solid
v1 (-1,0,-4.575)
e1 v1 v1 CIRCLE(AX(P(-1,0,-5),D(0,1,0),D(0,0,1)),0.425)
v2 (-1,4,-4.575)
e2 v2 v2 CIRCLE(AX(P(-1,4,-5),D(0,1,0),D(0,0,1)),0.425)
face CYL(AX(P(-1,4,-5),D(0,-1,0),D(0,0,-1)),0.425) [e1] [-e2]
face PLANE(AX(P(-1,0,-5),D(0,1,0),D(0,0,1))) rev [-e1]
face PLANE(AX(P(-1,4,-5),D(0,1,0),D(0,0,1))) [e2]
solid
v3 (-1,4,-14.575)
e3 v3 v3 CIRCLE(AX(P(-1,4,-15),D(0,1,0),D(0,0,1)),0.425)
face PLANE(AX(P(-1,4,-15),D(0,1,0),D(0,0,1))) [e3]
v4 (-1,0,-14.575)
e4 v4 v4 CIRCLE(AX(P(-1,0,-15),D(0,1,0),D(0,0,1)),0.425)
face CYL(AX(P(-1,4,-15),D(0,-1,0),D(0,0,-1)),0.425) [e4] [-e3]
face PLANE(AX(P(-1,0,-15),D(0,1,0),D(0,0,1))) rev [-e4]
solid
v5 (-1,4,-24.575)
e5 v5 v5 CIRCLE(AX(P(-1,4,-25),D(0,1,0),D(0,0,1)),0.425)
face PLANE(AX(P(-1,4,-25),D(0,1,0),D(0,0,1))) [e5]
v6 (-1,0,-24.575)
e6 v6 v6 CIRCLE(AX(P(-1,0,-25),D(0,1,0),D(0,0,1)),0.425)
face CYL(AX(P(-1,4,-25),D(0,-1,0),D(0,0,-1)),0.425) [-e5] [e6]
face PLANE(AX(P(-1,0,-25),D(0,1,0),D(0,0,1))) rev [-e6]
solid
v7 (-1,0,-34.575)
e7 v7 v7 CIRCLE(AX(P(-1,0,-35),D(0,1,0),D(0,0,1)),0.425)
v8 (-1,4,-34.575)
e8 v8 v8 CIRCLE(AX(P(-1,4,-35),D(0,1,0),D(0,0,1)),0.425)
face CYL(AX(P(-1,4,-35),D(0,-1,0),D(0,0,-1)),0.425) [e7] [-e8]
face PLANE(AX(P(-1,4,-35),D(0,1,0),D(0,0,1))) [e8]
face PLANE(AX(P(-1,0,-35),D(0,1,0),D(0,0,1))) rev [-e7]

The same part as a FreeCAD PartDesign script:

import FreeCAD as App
import Part
import Sketcher
from FreeCAD import Vector
Q = App.Units.Quantity

doc = App.newDocument("Part")
body = doc.addObject("PartDesign::Body", "Body")

# Sketch on XZ plane
sketch1 = doc.addObject("Sketcher::SketchObject", "Sketch")
body.addObject(sketch1)
sketch1.AttachmentSupport = (doc.XZ_Plane, [""])
sketch1.MapMode = "FlatFace"
sketch1.addGeometry(Part.Circle(Vector(-1, -5, 0), Vector(0, 0, 1), 0.42), False)
sketch1.addConstraint(Sketcher.Constraint("Diameter", 0, Q("0.85 mm")))
sketch1.addConstraint(Sketcher.Constraint("DistanceX", 0, 3, -1, 1, Q("1 mm")))
sketch1.addConstraint(Sketcher.Constraint("DistanceY", 0, 3, -1, 1, Q("5 mm")))
pad1 = doc.addObject("PartDesign::Pad", "Pad")
body.addObject(pad1)
pad1.Profile = sketch1
pad1.Length = 4
pad1.Reversed = True
body2 = doc.addObject("PartDesign::Body", "Body001")

# Sketch on XZ plane
sketch2 = doc.addObject("Sketcher::SketchObject", "Sketch001")
body2.addObject(sketch2)
sketch2.AttachmentSupport = (doc.getObject("XZ_Plane001"), [""])
sketch2.MapMode = "FlatFace"
sketch2.addGeometry(Part.Circle(Vector(-1, -15, 0), Vector(0, 0, 1), 0.42), False)
sketch2.addConstraint(Sketcher.Constraint("Diameter", 0, Q("0.85 mm")))
sketch2.addConstraint(Sketcher.Constraint("DistanceX", 0, 3, -1, 1, Q("1 mm")))
sketch2.addConstraint(Sketcher.Constraint("DistanceY", 0, 3, -1, 1, Q("15 mm")))
pad2 = doc.addObject("PartDesign::Pad", "Pad001")
body2.addObject(pad2)
pad2.Profile = sketch2
pad2.Length = 4
pad2.Reversed = True
body3 = doc.addObject("PartDesign::Body", "Body002")

# Sketch on XZ plane
sketch3 = doc.addObject("Sketcher::SketchObject", "Sketch002")
body3.addObject(sketch3)
sketch3.AttachmentSupport = (doc.getObject("XZ_Plane002"), [""])
sketch3.MapMode = "FlatFace"
sketch3.addGeometry(Part.Circle(Vector(-1, -25, 0), Vector(0, 0, 1), 0.42), False)
sketch3.addConstraint(Sketcher.Constraint("Diameter", 0, Q("0.85 mm")))
sketch3.addConstraint(Sketcher.Constraint("DistanceX", 0, 3, -1, 1, Q("1 mm")))
sketch3.addConstraint(Sketcher.Constraint("DistanceY", 0, 3, -1, 1, Q("25 mm")))
pad3 = doc.addObject("PartDesign::Pad", "Pad002")
body3.addObject(pad3)
pad3.Profile = sketch3
pad3.Length = 4
pad3.Reversed = True
body4 = doc.addObject("PartDesign::Body", "Body003")

# Sketch on XZ plane
sketch4 = doc.addObject("Sketcher::SketchObject", "Sketch003")
body4.addObject(sketch4)
sketch4.AttachmentSupport = (doc.getObject("XZ_Plane003"), [""])
sketch4.MapMode = "FlatFace"
sketch4.addGeometry(Part.Circle(Vector(-1, -35, 0), Vector(0, 0, 1), 0.42), False)
sketch4.addConstraint(Sketcher.Constraint("Diameter", 0, Q("0.85 mm")))
sketch4.addConstraint(Sketcher.Constraint("DistanceX", 0, 3, -1, 1, Q("1 mm")))
sketch4.addConstraint(Sketcher.Constraint("DistanceY", 0, 3, -1, 1, Q("35 mm")))
pad4 = doc.addObject("PartDesign::Pad", "Pad003")
body4.addObject(pad4)
pad4.Profile = sketch4
pad4.Length = 4
pad4.Reversed = True

doc.recompute()
